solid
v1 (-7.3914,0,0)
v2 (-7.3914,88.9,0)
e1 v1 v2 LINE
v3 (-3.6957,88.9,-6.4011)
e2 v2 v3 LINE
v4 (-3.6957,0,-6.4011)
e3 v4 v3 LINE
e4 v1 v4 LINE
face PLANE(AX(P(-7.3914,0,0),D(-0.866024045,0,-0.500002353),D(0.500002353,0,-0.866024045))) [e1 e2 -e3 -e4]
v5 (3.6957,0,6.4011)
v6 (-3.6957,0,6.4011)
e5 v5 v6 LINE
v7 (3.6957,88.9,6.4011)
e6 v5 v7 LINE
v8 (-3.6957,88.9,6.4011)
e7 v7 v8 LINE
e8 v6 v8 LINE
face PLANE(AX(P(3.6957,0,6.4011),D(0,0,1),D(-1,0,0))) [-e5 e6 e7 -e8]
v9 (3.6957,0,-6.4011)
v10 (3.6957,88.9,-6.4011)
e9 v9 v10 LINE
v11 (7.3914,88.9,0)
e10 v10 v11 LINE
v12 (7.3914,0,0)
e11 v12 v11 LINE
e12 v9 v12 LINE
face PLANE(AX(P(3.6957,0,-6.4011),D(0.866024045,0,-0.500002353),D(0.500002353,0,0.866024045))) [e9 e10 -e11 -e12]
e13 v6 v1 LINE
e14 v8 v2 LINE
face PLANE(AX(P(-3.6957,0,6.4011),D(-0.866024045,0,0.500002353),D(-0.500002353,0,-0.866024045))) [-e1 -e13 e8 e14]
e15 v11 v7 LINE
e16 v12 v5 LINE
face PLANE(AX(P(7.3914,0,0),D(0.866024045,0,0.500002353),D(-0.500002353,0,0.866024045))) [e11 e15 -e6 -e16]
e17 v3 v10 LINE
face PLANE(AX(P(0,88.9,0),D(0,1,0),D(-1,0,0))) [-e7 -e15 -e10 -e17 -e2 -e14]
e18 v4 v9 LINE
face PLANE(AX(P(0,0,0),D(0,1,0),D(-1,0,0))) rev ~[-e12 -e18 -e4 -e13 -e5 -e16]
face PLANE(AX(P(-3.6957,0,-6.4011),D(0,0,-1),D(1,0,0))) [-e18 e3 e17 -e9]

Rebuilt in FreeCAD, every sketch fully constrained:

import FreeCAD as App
import Part
import Sketcher
from FreeCAD import Vector
Q = App.Units.Quantity


def add_polygon(sketch, points):
    """Adds a closed chain of lines whose ends are joined by coincident constraints."""
    first, n = sketch.GeometryCount, len(points)
    for a, b in zip(points, points[1:] + points[:1]):
        sketch.addGeometry(Part.LineSegment(App.Vector(*a, 0), App.Vector(*b, 0)), False)
    for i in range(n):
        sketch.addConstraint(Sketcher.Constraint("Coincident", first + i, 2, first + (i + 1) % n, 1))

doc = App.newDocument("Part")
params = doc.addObject("Spreadsheet::Sheet", "Params")
for row, (alias, value) in enumerate([
    ("sketch1_width", "0.291 in"),
    ("pad1_length", "3.5 in"),
], start=1):
    params.set(f"A{row}", alias)
    params.set(f"B{row}", "=" + value)
    params.setAlias(f"B{row}", alias)

body = doc.addObject("PartDesign::Body", "Body")

sketch1 = body.newObject("Sketcher::SketchObject", "Sketch")
sketch1.AttachmentSupport = (doc.getObject("XZ_Plane"), [""])
sketch1.MapMode = "FlatFace"
add_polygon(sketch1, [(3.6957, 6.4011), (7.3914, 0), (3.6957, -6.4011), (-3.6957, -6.4011), (-7.3914, 0), (-3.6957, 6.4011)])
sketch1.addConstraint(Sketcher.Constraint("Horizontal", 2))
sketch1.addConstraint(Sketcher.Constraint("Horizontal", 5))
sketch1.addConstraint(Sketcher.Constraint("Symmetric", 0, 2, 3, 2, -1, 1))
sketch1.addConstraint(Sketcher.Constraint("Symmetric", 1, 2, 4, 2, -1, 1))
sketch1.addConstraint(Sketcher.Constraint("PointOnObject", 0, 2, -1))
sketch1.addConstraint(Sketcher.Constraint("Parallel", 0, 3))
sketch1.addConstraint(Sketcher.Constraint("Vertical", 2, 2, 4, 2))
sketch1.addConstraint(Sketcher.Constraint("Angle", 0, Q("-59.9998 deg")))
sketch1.addConstraint(Sketcher.Constraint("DistanceX", 3, 2, 0, 2, Q("0.582 in")))
sketch1.addConstraint(Sketcher.Constraint("DistanceX", 2, 2, 2, 1, Q("0.291 in")))
sketch1.setExpression("Constraints[15]", "Params.sketch1_width")
pad1 = body.newObject("PartDesign::Pad", "Pad")
pad1.Profile = sketch1
pad1.setExpression("Length", "Params.pad1_length")
pad1.Reversed = True

doc.recompute()
